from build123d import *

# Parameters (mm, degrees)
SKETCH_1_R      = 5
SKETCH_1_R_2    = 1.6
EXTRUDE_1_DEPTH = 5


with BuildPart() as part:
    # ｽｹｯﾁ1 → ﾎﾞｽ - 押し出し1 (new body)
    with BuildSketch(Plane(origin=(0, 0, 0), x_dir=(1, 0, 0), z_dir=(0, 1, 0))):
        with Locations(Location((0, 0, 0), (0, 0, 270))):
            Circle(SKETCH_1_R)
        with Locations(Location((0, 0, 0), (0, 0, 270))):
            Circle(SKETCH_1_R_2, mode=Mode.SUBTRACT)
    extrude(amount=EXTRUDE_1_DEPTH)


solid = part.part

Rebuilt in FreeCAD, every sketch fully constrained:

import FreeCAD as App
import Part
import Sketcher

V = App.Vector

doc = App.newDocument("Part")
body = doc.addObject("PartDesign::Body", "Body")

sketch1 = doc.addObject("Sketcher::SketchObject", "Sketch")
body.addObject(sketch1)
sketch1.AttachmentSupport = (doc.XZ_Plane, [""])
sketch1.MapMode = "FlatFace"
sketch1.addGeometry(Part.Circle(V(0, 0, 0), V(0, 0, 1), 5), False)
sketch1.addGeometry(Part.Circle(V(0, 0, 0), V(0, 0, 1), 1.6), False)
sketch1.addConstraint(Sketcher.Constraint("Coincident", 0, 3, -1, 1))
sketch1.addConstraint(Sketcher.Constraint("Coincident", 1, 3, -1, 1))
sketch1.addConstraint(Sketcher.Constraint("Diameter", 0, 10.0))
sketch1.addConstraint(Sketcher.Constraint("Diameter", 1, 3.2))
pad1 = doc.addObject("PartDesign::Pad", "Pad")
body.addObject(pad1)
pad1.Profile = sketch1
pad1.Length = 5
pad1.Reversed = True

doc.recompute()
